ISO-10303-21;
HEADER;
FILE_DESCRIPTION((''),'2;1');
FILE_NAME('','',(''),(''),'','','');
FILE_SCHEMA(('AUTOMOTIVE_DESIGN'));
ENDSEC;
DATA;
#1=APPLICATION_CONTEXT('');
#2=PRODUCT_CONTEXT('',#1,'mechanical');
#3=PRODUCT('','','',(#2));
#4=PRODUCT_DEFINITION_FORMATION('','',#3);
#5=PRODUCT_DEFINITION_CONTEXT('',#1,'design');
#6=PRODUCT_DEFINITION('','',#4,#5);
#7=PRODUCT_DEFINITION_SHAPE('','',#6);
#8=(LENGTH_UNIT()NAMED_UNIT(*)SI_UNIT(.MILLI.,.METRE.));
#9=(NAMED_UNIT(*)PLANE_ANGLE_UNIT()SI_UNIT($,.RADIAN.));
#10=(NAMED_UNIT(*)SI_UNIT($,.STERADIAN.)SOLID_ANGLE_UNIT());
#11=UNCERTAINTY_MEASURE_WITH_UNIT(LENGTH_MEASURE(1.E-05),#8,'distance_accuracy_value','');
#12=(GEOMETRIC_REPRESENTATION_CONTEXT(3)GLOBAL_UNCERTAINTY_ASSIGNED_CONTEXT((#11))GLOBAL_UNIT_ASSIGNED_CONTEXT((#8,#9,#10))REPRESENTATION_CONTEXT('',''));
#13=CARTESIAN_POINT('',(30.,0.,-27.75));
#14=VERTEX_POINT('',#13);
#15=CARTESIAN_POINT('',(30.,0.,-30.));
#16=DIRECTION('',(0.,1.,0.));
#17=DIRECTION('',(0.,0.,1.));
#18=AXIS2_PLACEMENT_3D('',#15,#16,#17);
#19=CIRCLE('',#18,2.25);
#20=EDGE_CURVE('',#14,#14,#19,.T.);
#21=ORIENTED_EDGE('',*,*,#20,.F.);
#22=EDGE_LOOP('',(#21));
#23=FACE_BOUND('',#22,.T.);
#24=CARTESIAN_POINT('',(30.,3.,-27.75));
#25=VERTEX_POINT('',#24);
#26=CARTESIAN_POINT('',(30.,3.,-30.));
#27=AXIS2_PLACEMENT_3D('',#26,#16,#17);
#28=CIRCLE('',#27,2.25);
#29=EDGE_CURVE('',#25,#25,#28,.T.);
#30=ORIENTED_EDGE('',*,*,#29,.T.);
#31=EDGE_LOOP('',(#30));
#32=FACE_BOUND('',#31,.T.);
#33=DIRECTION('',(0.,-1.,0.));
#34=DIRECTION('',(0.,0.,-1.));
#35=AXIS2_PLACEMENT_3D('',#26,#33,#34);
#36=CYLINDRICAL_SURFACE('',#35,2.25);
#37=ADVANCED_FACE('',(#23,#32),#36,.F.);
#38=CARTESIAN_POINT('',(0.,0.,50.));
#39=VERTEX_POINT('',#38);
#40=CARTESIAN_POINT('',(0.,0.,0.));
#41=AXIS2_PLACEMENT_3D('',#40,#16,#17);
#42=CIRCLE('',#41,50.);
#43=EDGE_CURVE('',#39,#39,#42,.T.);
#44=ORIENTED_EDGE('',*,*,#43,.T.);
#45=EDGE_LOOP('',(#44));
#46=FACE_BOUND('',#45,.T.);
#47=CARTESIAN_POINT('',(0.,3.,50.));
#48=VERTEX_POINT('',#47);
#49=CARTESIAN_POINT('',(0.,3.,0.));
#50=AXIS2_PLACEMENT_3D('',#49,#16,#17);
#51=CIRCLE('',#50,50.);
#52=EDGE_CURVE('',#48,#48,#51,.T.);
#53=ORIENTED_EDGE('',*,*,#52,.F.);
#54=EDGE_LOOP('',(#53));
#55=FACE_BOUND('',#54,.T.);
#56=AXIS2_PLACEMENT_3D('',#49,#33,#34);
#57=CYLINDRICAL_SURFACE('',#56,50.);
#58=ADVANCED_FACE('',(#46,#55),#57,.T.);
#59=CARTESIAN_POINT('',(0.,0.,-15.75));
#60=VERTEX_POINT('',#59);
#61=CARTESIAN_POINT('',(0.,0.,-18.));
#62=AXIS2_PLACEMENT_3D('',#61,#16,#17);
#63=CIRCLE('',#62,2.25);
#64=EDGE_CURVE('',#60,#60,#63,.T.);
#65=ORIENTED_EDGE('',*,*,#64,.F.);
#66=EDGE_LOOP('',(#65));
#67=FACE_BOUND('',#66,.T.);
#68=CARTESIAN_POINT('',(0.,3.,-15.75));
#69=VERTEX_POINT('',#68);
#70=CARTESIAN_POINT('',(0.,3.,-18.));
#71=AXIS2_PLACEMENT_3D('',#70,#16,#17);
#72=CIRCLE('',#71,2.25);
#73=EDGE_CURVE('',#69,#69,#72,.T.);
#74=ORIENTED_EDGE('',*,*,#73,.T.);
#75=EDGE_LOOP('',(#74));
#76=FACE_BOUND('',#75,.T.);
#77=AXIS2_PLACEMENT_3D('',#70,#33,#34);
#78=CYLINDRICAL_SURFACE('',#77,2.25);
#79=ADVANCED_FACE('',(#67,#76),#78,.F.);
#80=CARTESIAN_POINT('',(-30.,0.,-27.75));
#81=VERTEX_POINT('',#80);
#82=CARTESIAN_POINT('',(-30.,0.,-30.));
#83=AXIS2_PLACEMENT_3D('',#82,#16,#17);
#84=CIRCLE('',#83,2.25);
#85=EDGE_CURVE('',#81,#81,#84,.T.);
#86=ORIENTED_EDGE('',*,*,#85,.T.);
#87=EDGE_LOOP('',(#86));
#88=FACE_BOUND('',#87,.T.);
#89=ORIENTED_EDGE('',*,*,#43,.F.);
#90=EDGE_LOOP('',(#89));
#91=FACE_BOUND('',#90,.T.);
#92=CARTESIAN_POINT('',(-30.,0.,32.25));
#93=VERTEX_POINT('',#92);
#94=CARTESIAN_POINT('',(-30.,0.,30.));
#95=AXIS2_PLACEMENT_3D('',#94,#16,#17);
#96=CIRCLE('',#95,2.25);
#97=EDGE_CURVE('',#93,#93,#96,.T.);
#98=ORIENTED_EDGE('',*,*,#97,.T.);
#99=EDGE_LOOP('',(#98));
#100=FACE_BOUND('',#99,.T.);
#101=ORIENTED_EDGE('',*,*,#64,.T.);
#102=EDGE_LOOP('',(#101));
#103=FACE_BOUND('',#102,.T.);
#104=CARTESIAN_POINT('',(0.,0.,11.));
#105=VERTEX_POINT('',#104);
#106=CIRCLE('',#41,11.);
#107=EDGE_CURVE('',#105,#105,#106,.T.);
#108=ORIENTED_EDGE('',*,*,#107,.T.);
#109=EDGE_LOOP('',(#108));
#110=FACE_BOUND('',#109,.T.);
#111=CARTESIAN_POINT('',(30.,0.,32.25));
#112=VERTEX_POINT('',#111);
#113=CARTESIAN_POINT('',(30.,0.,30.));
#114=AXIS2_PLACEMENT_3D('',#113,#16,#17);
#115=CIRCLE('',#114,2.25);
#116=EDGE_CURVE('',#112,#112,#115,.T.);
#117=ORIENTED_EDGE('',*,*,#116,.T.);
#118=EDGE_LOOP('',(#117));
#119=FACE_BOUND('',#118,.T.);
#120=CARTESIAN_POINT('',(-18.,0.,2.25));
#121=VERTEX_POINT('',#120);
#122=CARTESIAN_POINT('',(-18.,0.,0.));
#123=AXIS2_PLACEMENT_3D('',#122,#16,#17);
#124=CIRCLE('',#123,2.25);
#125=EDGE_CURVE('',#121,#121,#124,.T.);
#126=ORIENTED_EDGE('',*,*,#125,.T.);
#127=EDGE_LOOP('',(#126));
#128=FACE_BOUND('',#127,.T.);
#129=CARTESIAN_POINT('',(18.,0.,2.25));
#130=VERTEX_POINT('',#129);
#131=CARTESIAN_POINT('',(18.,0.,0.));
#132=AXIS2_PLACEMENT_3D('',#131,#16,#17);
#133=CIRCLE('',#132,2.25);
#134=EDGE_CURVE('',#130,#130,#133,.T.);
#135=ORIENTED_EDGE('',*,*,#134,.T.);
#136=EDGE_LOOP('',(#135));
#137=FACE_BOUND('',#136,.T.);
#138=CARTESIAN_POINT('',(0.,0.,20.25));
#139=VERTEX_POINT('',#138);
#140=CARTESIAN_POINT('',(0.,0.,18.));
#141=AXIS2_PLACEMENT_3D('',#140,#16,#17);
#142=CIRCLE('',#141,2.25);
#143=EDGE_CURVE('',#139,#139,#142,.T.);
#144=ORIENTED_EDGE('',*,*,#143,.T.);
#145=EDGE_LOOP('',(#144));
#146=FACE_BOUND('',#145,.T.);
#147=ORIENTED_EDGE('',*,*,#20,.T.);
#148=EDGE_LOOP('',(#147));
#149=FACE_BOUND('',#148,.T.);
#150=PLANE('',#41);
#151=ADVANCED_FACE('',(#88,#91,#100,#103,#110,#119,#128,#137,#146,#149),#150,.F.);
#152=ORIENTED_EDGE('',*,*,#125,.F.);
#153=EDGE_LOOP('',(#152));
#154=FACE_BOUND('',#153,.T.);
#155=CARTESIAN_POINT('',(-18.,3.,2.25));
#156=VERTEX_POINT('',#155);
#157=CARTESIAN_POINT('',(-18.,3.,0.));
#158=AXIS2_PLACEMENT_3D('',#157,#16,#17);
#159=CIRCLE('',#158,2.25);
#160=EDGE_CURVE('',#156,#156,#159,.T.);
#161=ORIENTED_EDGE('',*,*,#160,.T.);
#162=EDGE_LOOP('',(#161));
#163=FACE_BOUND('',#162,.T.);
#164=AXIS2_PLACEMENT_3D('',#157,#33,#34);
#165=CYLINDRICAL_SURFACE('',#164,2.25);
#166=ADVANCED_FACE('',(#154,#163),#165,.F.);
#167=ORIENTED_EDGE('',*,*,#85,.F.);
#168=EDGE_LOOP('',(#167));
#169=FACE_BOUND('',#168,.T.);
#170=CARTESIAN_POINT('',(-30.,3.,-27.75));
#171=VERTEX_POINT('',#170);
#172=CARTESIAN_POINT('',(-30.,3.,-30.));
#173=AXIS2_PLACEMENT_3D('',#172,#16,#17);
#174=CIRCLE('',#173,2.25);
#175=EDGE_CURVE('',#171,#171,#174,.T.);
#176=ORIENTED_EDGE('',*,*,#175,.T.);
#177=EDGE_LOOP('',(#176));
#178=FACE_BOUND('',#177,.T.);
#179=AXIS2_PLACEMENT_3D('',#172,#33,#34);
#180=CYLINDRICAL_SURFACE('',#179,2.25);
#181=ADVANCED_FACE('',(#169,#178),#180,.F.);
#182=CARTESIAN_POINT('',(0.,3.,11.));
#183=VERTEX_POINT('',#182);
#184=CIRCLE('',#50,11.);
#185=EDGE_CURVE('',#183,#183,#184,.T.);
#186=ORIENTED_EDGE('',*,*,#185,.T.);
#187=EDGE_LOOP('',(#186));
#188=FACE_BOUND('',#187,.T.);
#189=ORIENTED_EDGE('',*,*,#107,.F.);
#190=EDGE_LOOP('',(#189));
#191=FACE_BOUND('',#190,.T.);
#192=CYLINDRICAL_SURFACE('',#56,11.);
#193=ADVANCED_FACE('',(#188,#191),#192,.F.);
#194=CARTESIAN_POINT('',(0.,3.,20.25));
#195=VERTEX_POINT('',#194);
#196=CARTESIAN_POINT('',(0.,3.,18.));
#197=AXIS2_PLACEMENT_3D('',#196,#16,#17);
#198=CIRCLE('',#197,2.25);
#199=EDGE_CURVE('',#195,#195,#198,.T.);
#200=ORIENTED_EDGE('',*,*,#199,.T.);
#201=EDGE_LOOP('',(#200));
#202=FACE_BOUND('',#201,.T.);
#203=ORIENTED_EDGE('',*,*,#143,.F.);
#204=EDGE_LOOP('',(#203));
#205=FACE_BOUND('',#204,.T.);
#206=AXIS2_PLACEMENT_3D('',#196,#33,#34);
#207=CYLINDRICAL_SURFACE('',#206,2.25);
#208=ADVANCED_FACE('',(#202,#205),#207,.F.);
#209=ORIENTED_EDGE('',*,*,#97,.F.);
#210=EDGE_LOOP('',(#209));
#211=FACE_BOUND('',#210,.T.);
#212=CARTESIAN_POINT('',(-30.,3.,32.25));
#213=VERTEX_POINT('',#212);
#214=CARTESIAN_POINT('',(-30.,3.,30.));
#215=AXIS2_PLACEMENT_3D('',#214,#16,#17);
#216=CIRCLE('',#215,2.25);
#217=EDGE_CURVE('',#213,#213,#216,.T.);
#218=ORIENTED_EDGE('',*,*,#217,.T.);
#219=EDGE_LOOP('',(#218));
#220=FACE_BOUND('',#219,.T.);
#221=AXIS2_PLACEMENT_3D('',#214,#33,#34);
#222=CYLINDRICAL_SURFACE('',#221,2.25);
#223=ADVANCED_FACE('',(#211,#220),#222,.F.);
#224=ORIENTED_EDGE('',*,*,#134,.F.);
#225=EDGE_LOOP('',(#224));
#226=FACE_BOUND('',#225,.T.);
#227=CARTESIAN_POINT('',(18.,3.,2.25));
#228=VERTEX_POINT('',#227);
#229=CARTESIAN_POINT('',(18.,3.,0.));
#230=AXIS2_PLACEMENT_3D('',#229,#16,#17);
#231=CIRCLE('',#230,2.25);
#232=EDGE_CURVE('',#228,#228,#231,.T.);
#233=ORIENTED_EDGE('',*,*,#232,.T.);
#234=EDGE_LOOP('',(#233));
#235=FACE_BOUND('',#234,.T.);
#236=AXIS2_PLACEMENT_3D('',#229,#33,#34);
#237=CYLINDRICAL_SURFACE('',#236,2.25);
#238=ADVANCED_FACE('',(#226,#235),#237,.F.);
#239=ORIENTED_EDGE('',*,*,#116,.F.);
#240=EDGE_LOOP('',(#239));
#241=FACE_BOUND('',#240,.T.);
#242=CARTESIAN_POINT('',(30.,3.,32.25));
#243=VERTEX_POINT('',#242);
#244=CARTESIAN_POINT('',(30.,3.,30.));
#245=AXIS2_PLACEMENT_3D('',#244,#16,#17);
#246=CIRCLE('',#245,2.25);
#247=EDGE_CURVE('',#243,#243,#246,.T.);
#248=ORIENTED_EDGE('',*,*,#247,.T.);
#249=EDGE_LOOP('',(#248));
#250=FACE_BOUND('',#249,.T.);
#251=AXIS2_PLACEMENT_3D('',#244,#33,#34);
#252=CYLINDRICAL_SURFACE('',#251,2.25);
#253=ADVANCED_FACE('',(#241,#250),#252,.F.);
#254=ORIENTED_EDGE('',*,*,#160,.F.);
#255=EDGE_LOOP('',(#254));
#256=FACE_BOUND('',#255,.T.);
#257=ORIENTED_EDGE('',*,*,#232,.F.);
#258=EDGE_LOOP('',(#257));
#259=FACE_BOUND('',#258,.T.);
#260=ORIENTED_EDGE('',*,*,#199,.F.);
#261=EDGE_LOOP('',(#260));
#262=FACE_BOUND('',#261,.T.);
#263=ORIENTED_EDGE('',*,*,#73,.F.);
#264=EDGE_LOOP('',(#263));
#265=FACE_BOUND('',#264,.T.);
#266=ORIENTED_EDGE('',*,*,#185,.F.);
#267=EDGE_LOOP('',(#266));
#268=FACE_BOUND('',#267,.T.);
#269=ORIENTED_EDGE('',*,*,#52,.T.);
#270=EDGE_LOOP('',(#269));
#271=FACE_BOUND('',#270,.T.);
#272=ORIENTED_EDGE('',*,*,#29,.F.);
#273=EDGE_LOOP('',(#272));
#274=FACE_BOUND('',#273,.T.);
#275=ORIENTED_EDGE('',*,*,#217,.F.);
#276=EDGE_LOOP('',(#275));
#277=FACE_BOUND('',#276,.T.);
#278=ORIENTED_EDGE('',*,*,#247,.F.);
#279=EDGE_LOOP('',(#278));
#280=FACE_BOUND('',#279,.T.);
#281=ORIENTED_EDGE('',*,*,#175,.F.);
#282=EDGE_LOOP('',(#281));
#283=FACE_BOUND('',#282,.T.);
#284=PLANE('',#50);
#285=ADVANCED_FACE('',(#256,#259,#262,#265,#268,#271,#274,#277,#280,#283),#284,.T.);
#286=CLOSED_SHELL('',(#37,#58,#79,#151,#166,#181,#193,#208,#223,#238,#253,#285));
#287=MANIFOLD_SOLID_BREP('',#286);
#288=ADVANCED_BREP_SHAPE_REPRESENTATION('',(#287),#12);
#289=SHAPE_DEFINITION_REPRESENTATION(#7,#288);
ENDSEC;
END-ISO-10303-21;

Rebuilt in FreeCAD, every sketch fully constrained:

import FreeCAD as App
import Part
import Sketcher

doc = App.newDocument("Part")
params = doc.addObject("Spreadsheet::Sheet", "Params")
for row, (alias, value) in enumerate([
    ("sketch1_diameter", "100 mm"),
    ("pad1_length", "3 mm"),
    ("sketch2_diameter", "4.5 mm"),
    ("sketch3_diameter", "22 mm"),
], start=1):
    params.set(f"A{row}", alias)
    params.set(f"B{row}", "=" + value)
    params.setAlias(f"B{row}", alias)

body = doc.addObject("PartDesign::Body", "Body")

# Sketch on XZ plane
sketch1 = body.newObject("Sketcher::SketchObject", "Sketch")
sketch1.AttachmentSupport = (doc.getObject("XZ_Plane"), [""])
sketch1.MapMode = "FlatFace"
sketch1.addGeometry(Part.Circle(App.Vector(0, 0, 0), App.Vector(0, 0, 1), 50), False)
sketch1.addConstraint([
    Sketcher.Constraint("Coincident", 0, 3, -1, 1),
    Sketcher.Constraint("Diameter", 0, 100.0),
])
sketch1.setExpression("Constraints[1]", "Params.sketch1_diameter")
pad1 = body.newObject("PartDesign::Pad", "Pad")
pad1.Profile = sketch1
pad1.setExpression("Length", "Params.pad1_length")
pad1.Reversed = True

# Sketch on XZ plane
sketch2 = body.newObject("Sketcher::SketchObject", "Sketch001")
sketch2.AttachmentSupport = (doc.getObject("XZ_Plane"), [""])
sketch2.MapMode = "FlatFace"
sketch2.addGeometry([
    Part.Circle(App.Vector(-18, 0, 0), App.Vector(0, 0, 1), 2.2),  # 0
    Part.Circle(App.Vector(-30, -30, 0), App.Vector(0, 0, 1), 2.2),  # 1
    Part.Circle(App.Vector(30, -30, 0), App.Vector(0, 0, 1), 2.2),  # 2
    Part.Circle(App.Vector(30, 30, 0), App.Vector(0, 0, 1), 2.2),  # 3
    Part.Circle(App.Vector(-30, 30, 0), App.Vector(0, 0, 1), 2.2),  # 4
    Part.Circle(App.Vector(0, -18, 0), App.Vector(0, 0, 1), 2.2),  # 5
    Part.Circle(App.Vector(18, 0, 0), App.Vector(0, 0, 1), 2.2),  # 6
    Part.Circle(App.Vector(0, 18, 0), App.Vector(0, 0, 1), 2.2),  # 7
], False)
sketch2.addConstraint([
    Sketcher.Constraint("Equal", 0, 1),
    Sketcher.Constraint("Equal", 1, 2),
    Sketcher.Constraint("Equal", 2, 3),
    Sketcher.Constraint("Equal", 3, 4),
    Sketcher.Constraint("Equal", 4, 5),
    Sketcher.Constraint("Equal", 5, 6),
    Sketcher.Constraint("Equal", 6, 7),
    Sketcher.Constraint("Symmetric", 1, 3, 3, 3, -1, 1),
    Sketcher.Constraint("Symmetric", 2, 3, 4, 3, -1, 1),
    Sketcher.Constraint("Symmetric", 0, 3, 6, 3, -1, 1),
    Sketcher.Constraint("Symmetric", 5, 3, 7, 3, -1, 1),
    Sketcher.Constraint("Symmetric", 1, 3, 2, 3, -2),
    Sketcher.Constraint("PointOnObject", 0, 3, -1),
    Sketcher.Constraint("PointOnObject", 5, 3, -2),
    Sketcher.Constraint("Diameter", 0, 4.5),
    Sketcher.Constraint("DistanceX", 0, 3, -1, 1, 18.0),
    Sketcher.Constraint("DistanceX", 1, 3, -1, 1, 30.0),
    Sketcher.Constraint("DistanceY", 1, 3, -1, 1, 30.0),
    Sketcher.Constraint("DistanceY", 5, 3, -1, 1, 18.0),
])
sketch2.setExpression("Constraints[14]", "Params.sketch2_diameter")
pocket1 = body.newObject("PartDesign::Pocket", "Pocket")
pocket1.Profile = sketch2
pocket1.Type = "ThroughAll"

# Sketch on XZ plane
sketch3 = body.newObject("Sketcher::SketchObject", "Sketch002")
sketch3.AttachmentSupport = (doc.getObject("XZ_Plane"), [""])
sketch3.MapMode = "FlatFace"
sketch3.addGeometry(Part.Circle(App.Vector(0, 0, 0), App.Vector(0, 0, 1), 11), False)
sketch3.addConstraint([
    Sketcher.Constraint("Coincident", 0, 3, -1, 1),
    Sketcher.Constraint("Diameter", 0, 22.0),
])
sketch3.setExpression("Constraints[1]", "Params.sketch3_diameter")
pocket2 = body.newObject("PartDesign::Pocket", "Pocket001")
pocket2.Profile = sketch3
pocket2.Type = "ThroughAll"

doc.recompute()
